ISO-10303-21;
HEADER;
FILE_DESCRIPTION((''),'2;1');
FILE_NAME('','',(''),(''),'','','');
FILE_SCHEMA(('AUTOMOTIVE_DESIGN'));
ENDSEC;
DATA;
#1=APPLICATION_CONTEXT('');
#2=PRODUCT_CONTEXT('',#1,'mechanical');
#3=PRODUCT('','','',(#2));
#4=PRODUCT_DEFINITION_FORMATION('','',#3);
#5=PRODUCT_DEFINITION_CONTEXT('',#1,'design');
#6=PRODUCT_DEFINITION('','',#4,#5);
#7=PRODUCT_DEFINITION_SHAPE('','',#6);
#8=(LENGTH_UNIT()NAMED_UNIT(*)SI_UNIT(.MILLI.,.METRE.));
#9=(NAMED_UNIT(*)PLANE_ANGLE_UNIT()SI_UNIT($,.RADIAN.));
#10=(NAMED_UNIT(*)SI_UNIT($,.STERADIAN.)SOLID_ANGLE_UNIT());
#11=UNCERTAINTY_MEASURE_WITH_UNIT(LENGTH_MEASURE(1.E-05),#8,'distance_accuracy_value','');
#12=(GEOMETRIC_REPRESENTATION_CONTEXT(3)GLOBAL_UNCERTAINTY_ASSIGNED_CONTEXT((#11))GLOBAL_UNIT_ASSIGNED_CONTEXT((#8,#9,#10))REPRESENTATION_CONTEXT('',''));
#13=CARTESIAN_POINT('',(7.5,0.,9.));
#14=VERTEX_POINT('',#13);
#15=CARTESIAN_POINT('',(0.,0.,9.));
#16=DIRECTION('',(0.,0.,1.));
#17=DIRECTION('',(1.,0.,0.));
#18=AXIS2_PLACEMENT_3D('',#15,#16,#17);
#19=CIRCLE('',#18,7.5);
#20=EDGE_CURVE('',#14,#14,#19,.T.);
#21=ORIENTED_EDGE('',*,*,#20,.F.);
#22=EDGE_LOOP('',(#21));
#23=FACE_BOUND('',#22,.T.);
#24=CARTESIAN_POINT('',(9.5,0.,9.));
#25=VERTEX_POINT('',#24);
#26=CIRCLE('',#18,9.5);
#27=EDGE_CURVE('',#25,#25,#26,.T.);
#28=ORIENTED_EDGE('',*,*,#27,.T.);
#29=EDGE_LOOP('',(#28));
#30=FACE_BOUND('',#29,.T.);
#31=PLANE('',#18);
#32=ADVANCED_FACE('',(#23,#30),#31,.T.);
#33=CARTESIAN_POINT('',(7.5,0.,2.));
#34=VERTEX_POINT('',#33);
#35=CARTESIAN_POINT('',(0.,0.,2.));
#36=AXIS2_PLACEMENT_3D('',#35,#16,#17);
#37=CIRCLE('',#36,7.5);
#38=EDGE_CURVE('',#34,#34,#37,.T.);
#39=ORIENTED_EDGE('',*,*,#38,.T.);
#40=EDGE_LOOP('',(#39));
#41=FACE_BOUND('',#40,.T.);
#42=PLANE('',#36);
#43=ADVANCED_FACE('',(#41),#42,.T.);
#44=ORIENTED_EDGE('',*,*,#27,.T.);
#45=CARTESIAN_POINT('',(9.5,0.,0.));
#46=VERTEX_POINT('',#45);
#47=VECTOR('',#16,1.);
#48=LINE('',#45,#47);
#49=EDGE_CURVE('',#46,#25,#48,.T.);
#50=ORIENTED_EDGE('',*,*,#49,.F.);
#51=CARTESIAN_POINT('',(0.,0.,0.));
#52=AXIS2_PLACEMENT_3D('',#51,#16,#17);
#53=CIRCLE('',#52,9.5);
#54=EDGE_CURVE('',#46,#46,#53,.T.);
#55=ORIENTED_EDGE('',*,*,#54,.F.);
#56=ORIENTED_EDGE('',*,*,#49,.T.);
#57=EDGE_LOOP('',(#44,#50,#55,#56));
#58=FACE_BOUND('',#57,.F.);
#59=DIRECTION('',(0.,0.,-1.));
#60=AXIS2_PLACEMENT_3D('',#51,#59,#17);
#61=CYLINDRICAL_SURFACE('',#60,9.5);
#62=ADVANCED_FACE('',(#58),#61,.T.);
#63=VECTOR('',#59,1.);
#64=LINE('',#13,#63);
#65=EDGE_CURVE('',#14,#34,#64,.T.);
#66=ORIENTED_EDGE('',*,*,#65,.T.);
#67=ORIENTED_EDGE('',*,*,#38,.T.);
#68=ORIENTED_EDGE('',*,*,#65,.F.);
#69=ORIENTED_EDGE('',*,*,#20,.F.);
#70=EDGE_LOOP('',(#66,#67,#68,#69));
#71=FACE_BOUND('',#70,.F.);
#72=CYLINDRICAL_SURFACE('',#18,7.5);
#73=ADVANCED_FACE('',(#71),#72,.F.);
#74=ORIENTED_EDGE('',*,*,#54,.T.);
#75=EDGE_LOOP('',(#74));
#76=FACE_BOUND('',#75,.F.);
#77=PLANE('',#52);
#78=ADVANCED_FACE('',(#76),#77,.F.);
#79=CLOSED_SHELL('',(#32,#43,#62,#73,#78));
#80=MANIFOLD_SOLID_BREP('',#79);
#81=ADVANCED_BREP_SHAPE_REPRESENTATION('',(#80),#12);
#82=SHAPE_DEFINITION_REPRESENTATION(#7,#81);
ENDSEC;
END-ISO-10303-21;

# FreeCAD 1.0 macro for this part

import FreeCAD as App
import Part
import Sketcher
from FreeCAD import Vector
Q = App.Units.Quantity

doc = App.newDocument("Part")
body = doc.addObject("PartDesign::Body", "Body")

sketch1 = body.newObject("Sketcher::SketchObject", "Sketch")
sketch1.AttachmentSupport = (doc.getObject("XY_Plane"), [""])
sketch1.MapMode = "FlatFace"
sketch1.addGeometry(Part.Circle(Vector(0, 0, 0), Vector(0, 0, 1), 9.5), False)
sketch1.addConstraint([
    Sketcher.Constraint("Coincident", 0, 3, -1, 1),
    Sketcher.Constraint("Diameter", 0, Q("19 mm")),
])
pad1 = body.newObject("PartDesign::Pad", "Pad")
pad1.Profile = sketch1
pad1.Length = 9

sketch2 = body.newObject("Sketcher::SketchObject", "Sketch001")
sketch2.AttachmentSupport = (doc.getObject("XY_Plane"), [""])
sketch2.MapMode = "FlatFace"
sketch2.AttachmentOffset = App.Placement(Vector(0, 0, 9), App.Rotation())
sketch2.addGeometry(Part.Circle(Vector(0, 0, 0), Vector(0, 0, 1), 7.5), False)
sketch2.addConstraint([
    Sketcher.Constraint("Coincident", 0, 3, -1, 1),
    Sketcher.Constraint("Diameter", 0, Q("15 mm")),
])
pocket1 = body.newObject("PartDesign::Pocket", "Pocket")
pocket1.Profile = sketch2
pocket1.Length = 7

doc.recompute()
